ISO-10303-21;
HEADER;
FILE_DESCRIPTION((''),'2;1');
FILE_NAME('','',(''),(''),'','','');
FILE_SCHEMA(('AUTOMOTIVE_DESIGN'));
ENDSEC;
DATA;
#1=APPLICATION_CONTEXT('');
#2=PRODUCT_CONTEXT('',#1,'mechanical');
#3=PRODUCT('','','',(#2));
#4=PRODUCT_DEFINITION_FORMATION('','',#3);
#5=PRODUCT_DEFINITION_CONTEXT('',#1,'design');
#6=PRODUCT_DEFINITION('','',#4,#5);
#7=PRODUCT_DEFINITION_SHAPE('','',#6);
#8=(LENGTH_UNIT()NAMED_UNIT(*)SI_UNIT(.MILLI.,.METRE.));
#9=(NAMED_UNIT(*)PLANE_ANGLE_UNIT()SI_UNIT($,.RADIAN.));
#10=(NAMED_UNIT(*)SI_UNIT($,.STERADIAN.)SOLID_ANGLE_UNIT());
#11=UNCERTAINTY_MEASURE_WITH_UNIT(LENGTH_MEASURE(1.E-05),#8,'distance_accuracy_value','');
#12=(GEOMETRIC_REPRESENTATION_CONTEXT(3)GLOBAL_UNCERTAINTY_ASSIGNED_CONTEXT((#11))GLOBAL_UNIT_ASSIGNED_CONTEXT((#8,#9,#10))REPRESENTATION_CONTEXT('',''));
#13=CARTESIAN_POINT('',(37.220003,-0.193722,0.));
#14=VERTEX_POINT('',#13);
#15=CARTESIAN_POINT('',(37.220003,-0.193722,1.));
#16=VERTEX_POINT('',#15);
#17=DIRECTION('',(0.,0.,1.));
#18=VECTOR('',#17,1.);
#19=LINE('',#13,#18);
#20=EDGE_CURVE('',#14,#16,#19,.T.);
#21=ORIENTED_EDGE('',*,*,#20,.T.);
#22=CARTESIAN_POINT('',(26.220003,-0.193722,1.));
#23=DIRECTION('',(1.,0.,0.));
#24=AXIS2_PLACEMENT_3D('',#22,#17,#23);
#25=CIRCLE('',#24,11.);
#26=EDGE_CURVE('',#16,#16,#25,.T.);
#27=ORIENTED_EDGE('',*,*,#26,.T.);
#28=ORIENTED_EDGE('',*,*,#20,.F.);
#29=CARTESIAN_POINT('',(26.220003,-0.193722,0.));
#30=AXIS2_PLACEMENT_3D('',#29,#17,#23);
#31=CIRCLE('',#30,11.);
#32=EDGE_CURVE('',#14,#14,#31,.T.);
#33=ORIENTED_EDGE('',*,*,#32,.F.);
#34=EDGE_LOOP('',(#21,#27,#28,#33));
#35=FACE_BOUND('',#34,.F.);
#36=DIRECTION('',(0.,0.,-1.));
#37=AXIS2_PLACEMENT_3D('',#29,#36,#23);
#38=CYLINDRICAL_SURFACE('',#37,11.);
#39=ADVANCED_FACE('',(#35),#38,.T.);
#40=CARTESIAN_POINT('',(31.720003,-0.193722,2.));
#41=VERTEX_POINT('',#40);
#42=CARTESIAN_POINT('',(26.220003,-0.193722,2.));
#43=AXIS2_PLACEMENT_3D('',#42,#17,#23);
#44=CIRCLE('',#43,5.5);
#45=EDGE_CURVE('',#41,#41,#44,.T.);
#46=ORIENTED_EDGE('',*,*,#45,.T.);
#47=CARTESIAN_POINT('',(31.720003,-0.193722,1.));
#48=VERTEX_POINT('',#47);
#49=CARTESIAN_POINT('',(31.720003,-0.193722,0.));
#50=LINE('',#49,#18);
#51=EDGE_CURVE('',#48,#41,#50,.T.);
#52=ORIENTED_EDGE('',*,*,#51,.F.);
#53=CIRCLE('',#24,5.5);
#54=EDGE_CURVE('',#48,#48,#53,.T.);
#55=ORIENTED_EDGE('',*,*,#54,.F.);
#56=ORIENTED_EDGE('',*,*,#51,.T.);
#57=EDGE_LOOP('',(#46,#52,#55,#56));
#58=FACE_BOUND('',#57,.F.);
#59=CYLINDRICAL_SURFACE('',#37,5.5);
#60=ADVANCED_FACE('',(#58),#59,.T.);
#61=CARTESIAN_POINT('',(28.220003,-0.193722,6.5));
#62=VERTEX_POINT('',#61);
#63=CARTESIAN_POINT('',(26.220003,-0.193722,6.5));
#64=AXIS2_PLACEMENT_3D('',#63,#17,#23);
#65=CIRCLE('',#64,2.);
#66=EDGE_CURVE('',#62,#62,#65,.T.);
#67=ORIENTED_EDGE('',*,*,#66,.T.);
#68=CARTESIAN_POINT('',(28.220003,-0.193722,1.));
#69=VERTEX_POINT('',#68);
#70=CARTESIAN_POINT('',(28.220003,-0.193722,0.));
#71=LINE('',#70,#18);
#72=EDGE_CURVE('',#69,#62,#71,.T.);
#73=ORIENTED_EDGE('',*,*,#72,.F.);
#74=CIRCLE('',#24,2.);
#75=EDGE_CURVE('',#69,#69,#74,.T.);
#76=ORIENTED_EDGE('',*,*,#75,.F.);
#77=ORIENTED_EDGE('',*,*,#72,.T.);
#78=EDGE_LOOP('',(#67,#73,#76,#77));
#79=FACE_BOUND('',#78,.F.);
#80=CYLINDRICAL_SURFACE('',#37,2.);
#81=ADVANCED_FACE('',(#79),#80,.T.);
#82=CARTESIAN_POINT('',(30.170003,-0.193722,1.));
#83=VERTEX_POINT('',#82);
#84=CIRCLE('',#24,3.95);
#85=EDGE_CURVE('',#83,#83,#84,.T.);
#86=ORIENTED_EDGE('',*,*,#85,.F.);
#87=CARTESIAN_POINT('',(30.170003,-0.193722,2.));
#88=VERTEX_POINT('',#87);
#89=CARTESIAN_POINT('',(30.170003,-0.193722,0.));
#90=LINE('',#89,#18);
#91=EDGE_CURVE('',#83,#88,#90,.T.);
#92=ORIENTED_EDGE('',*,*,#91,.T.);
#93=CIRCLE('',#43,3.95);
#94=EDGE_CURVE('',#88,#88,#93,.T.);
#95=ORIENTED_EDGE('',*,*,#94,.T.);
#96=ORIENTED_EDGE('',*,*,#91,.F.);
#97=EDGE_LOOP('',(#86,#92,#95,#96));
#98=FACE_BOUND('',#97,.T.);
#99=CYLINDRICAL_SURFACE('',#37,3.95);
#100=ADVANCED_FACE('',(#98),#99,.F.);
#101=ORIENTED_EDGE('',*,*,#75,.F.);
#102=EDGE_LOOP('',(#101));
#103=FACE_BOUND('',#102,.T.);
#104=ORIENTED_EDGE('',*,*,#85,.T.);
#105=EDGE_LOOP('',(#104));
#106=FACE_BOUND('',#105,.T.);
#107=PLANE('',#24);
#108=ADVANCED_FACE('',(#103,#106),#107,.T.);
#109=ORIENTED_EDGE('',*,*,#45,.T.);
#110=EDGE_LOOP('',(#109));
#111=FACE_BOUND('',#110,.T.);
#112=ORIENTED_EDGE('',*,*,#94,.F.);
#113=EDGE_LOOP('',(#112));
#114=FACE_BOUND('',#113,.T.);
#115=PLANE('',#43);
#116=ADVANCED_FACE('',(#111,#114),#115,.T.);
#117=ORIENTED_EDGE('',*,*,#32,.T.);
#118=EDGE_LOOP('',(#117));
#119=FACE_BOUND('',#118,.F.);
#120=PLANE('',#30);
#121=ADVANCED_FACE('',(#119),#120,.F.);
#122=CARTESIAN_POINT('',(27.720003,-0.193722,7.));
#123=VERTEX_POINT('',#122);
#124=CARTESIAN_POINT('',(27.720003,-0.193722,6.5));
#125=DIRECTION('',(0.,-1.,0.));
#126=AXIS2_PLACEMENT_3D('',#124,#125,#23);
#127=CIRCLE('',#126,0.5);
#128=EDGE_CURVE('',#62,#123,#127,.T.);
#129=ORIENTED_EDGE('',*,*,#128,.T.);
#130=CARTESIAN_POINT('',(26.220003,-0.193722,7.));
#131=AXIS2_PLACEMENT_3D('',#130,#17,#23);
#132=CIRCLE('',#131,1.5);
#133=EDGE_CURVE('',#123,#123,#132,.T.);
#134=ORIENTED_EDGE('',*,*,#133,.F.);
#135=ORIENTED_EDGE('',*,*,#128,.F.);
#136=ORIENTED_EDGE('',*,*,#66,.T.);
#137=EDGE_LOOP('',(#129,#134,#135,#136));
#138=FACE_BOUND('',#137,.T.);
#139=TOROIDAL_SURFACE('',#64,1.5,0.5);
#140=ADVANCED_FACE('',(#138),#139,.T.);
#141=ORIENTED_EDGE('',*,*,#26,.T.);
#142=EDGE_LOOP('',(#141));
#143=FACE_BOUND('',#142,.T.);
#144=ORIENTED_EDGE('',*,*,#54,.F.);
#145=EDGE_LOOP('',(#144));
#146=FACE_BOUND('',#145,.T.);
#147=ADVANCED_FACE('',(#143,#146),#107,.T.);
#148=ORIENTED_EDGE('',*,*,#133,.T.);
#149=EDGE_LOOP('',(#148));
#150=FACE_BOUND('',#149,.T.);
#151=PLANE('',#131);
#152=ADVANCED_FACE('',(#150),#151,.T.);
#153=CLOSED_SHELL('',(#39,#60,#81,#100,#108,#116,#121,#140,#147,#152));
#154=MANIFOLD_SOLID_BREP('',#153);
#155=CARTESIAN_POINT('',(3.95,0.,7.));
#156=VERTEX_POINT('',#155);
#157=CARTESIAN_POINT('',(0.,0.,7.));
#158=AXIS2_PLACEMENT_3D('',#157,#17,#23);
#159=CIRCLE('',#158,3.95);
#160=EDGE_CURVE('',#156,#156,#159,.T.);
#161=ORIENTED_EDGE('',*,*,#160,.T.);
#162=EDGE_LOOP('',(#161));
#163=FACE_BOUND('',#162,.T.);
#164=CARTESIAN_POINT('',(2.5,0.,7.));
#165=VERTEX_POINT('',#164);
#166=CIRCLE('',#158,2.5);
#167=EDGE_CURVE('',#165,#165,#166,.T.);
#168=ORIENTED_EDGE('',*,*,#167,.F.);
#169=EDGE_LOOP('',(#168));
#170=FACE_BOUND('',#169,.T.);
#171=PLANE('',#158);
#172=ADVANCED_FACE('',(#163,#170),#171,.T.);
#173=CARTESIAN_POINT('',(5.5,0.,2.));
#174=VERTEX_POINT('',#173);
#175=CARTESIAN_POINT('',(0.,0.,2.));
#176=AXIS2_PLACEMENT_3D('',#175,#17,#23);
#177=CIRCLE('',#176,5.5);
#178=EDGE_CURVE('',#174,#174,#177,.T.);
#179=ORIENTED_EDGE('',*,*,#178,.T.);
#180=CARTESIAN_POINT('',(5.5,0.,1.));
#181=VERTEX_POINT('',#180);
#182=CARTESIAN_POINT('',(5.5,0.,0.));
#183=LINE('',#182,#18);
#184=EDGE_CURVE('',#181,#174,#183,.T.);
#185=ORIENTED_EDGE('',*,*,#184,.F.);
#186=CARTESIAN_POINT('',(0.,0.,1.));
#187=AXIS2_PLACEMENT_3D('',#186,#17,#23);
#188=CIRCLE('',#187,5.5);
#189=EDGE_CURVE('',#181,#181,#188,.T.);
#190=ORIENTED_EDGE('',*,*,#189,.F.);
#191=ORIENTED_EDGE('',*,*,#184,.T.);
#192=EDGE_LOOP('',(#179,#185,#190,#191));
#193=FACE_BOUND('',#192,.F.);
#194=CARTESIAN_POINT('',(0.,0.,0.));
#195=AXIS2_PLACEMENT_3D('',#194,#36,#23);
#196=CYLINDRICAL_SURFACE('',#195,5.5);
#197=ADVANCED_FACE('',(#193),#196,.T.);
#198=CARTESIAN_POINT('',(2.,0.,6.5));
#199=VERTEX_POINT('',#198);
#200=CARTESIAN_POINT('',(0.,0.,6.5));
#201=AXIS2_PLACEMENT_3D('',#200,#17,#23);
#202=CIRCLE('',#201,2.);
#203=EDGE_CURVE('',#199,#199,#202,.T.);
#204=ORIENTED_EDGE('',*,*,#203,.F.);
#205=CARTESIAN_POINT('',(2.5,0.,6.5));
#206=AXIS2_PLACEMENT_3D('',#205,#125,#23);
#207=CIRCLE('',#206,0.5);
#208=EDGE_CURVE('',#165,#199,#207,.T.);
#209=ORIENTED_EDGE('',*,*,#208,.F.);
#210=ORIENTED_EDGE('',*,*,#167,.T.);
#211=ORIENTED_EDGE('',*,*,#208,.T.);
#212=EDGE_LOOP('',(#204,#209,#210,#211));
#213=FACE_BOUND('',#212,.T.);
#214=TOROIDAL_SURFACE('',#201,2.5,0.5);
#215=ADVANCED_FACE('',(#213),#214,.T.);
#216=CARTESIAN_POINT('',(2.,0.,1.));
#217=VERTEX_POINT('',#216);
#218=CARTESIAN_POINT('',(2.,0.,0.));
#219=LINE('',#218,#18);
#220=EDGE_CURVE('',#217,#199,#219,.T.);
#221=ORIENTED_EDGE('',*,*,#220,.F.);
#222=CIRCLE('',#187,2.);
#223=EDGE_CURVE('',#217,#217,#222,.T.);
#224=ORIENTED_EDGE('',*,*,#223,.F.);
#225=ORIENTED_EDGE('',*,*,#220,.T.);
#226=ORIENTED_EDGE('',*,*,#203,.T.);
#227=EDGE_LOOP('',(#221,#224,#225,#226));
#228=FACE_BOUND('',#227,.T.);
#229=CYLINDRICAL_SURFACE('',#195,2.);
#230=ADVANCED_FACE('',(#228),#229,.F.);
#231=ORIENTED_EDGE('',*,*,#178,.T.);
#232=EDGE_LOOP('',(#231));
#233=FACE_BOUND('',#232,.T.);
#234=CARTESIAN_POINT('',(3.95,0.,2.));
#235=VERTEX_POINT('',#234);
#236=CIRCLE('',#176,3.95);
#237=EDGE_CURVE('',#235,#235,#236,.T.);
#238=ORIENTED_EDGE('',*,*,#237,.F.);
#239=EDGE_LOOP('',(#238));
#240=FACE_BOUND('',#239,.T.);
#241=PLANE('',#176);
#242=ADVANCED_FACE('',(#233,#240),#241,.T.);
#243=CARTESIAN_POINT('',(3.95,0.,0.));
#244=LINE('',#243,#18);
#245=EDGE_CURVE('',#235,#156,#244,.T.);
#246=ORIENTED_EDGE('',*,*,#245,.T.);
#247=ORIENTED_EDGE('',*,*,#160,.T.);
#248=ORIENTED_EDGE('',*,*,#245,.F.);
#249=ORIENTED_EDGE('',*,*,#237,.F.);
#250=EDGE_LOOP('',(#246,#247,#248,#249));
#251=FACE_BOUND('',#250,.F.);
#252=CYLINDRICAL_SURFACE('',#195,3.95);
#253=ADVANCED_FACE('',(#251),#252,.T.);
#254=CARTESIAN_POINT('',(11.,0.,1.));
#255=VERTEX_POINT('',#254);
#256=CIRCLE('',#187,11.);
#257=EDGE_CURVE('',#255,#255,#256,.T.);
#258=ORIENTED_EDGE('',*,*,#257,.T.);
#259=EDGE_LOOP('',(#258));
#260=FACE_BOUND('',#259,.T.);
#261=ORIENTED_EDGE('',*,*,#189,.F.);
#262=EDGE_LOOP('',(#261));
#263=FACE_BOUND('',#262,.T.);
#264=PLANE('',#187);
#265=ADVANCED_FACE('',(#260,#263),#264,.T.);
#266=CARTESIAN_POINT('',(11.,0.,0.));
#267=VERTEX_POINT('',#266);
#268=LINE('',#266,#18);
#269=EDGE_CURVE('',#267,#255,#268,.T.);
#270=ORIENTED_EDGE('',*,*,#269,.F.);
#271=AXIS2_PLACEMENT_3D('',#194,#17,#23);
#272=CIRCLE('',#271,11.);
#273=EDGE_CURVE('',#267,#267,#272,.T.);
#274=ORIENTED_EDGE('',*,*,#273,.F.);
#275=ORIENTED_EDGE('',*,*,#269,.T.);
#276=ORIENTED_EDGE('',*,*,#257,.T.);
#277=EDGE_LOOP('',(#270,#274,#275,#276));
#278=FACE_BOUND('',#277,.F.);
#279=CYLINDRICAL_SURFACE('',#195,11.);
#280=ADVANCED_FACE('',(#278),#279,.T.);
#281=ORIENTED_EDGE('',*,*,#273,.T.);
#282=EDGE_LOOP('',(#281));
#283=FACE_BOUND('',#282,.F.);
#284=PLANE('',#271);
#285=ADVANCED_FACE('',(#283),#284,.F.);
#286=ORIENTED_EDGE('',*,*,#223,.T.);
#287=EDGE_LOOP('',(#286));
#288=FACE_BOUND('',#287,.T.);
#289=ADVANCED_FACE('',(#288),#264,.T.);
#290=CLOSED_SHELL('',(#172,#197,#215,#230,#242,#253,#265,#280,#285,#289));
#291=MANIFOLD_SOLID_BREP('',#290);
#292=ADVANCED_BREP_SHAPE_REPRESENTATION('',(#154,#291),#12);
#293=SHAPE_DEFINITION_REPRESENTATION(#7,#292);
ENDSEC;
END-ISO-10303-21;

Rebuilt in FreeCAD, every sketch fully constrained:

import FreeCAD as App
import Part
import Sketcher

V = App.Vector
Q = App.Units.Quantity


def edges_at(feature, points):
    """Names of the edges that pass closest to the given points."""
    edges = feature.Shape.Edges
    near = lambda p: min(range(len(edges)), key=lambda i: edges[i].distToShape(Part.Vertex(*p))[0])
    return sorted({f"Edge{near(p) + 1}" for p in points})

doc = App.newDocument("Part")
body = doc.addObject("PartDesign::Body", "Body")

sketch1 = body.newObject("Sketcher::SketchObject", "Sketch")
sketch1.AttachmentSupport = (doc.getObject("XY_Plane"), [""])
sketch1.MapMode = "FlatFace"
sketch1.addGeometry(Part.Circle(V(0, 0, 0), V(0, 0, 1), 11), False)
sketch1.addGeometry(Part.Circle(V(0, 0, 0), V(0, 0, 1), 6), False)
sketch1.addConstraint(Sketcher.Constraint("Coincident", 0, 3, -1, 1))
sketch1.addConstraint(Sketcher.Constraint("Coincident", 1, 3, -1, 1))
sketch1.addConstraint(Sketcher.Constraint("Diameter", 0, Q("22 mm")))
sketch1.addConstraint(Sketcher.Constraint("Diameter", 1, Q("11 mm")))
pad1 = body.newObject("PartDesign::Pad", "Pad")
pad1.Profile = sketch1
pad1.Length = 1

sketch2 = body.newObject("Sketcher::SketchObject", "Sketch001")
sketch2.AttachmentSupport = (doc.getObject("XY_Plane"), [""])
sketch2.MapMode = "FlatFace"
sketch2.addGeometry(Part.Circle(V(0, 0, 0), V(0, 0, 1), 5.5), False)
sketch2.addGeometry(Part.Circle(V(0, 0, 0), V(0, 0, 1), 4), False)
sketch2.addConstraint(Sketcher.Constraint("Coincident", 0, 3, -1, 1))
sketch2.addConstraint(Sketcher.Constraint("Coincident", 1, 3, -1, 1))
sketch2.addConstraint(Sketcher.Constraint("Diameter", 0, Q("11 mm")))
sketch2.addConstraint(Sketcher.Constraint("Diameter", 1, Q("7.9 mm")))
pad2 = body.newObject("PartDesign::Pad", "Pad001")
pad2.Profile = sketch2
pad2.Length = 2

sketch3 = body.newObject("Sketcher::SketchObject", "Sketch002")
sketch3.AttachmentSupport = (doc.getObject("XY_Plane"), [""])
sketch3.MapMode = "FlatFace"
sketch3.addGeometry(Part.Circle(V(0, 0, 0), V(0, 0, 1), 4), False)
sketch3.addGeometry(Part.Circle(V(0, 0, 0), V(0, 0, 1), 2), False)
sketch3.addConstraint(Sketcher.Constraint("Coincident", 0, 3, -1, 1))
sketch3.addConstraint(Sketcher.Constraint("Coincident", 1, 3, -1, 1))
sketch3.addConstraint(Sketcher.Constraint("Diameter", 1, Q("4 mm")))
sketch3.addConstraint(Sketcher.Constraint("Diameter", 0, Q("7.9 mm")))
pad3 = body.newObject("PartDesign::Pad", "Pad002")
pad3.Profile = sketch3
pad3.Length = 7

sketch4 = body.newObject("Sketcher::SketchObject", "Sketch003")
sketch4.AttachmentSupport = (doc.getObject("XY_Plane"), [""])
sketch4.MapMode = "FlatFace"
sketch4.addGeometry(Part.Circle(V(0, 0, 0), V(0, 0, 1), 2), False)
sketch4.addConstraint(Sketcher.Constraint("Coincident", 0, 3, -1, 1))
sketch4.addConstraint(Sketcher.Constraint("Diameter", 0, Q("4 mm")))
pad4 = body.newObject("PartDesign::Pad", "Pad003")
pad4.Profile = sketch4
pad4.Length = 1
doc.recompute()

fillet = body.newObject("PartDesign::Fillet", "Fillet")
fillet.Base = (pad4, edges_at(pad4, [(-2, 0, 7)]))
fillet.Radius = 0.5
body2 = doc.addObject("PartDesign::Body", "Body001")

sketch5 = body2.newObject("Sketcher::SketchObject", "Sketch004")
sketch5.AttachmentSupport = (doc.getObject("XY_Plane001"), [""])
sketch5.MapMode = "FlatFace"
sketch5.addGeometry(Part.Circle(V(26, 0, 0), V(0, 0, 1), 11), False)
sketch5.addGeometry(Part.Circle(V(26, 0, 0), V(0, 0, 1), 6), False)
sketch5.addConstraint(Sketcher.Constraint("Coincident", 1, 3, 0, 3))
sketch5.addConstraint(Sketcher.Constraint("Diameter", 0, Q("22 mm")))
sketch5.addConstraint(Sketcher.Constraint("Diameter", 1, Q("11 mm")))
sketch5.addConstraint(Sketcher.Constraint("DistanceX", -1, 1, 0, 3, Q("26.220003 mm")))
sketch5.addConstraint(Sketcher.Constraint("DistanceY", 0, 3, -1, 1, Q("0.193722 mm")))
pad5 = body2.newObject("PartDesign::Pad", "Pad004")
pad5.Profile = sketch5
pad5.Length = 1

sketch6 = body2.newObject("Sketcher::SketchObject", "Sketch005")
sketch6.AttachmentSupport = (doc.getObject("XY_Plane001"), [""])
sketch6.MapMode = "FlatFace"
sketch6.addGeometry(Part.Circle(V(26.2, -0.2, 0), V(0, 0, 1), 5.5), False)
sketch6.addGeometry(Part.Circle(V(26.2, -0.2, 0), V(0, 0, 1), 4), False)
sketch6.addConstraint(Sketcher.Constraint("Coincident", 1, 3, 0, 3))
sketch6.addConstraint(Sketcher.Constraint("Diameter", 0, Q("11 mm")))
sketch6.addConstraint(Sketcher.Constraint("Diameter", 1, Q("7.9 mm")))
sketch6.addConstraint(Sketcher.Constraint("DistanceX", -1, 1, 0, 3, Q("26.220003 mm")))
sketch6.addConstraint(Sketcher.Constraint("DistanceY", 0, 3, -1, 1, Q("0.193722 mm")))
pad6 = body2.newObject("PartDesign::Pad", "Pad005")
pad6.Profile = sketch6
pad6.Length = 2
body3 = doc.addObject("PartDesign::Body", "Body002")

sketch7 = body3.newObject("Sketcher::SketchObject", "Sketch006")
sketch7.AttachmentSupport = (doc.getObject("XY_Plane002"), [""])
sketch7.MapMode = "FlatFace"
sketch7.addGeometry(Part.Circle(V(26.2, -0.2, 0), V(0, 0, 1), 2), False)
sketch7.addConstraint(Sketcher.Constraint("Diameter", 0, Q("4 mm")))
sketch7.addConstraint(Sketcher.Constraint("DistanceX", -1, 1, 0, 3, Q("26.220003 mm")))
sketch7.addConstraint(Sketcher.Constraint("DistanceY", 0, 3, -1, 1, Q("0.193722 mm")))
pad7 = body3.newObject("PartDesign::Pad", "Pad006")
pad7.Profile = sketch7
pad7.Length = 7
body2.AllowCompound = True
doc.recompute()

boolean = body2.newObject("PartDesign::Boolean", "Boolean")
boolean.Type = "Fuse"
boolean.addObjects([body3])

sketch8 = body2.newObject("Sketcher::SketchObject", "Sketch007")
sketch8.AttachmentSupport = (doc.getObject("XY_Plane001"), [""])
sketch8.MapMode = "FlatFace"
sketch8.addGeometry(Part.Circle(V(26.2, -0.2, 0), V(0, 0, 1), 4), False)
sketch8.addGeometry(Part.Circle(V(26.2, -0.2, 0), V(0, 0, 1), 2), False)
sketch8.addConstraint(Sketcher.Constraint("Coincident", 1, 3, 0, 3))
sketch8.addConstraint(Sketcher.Constraint("Diameter", 1, Q("4 mm")))
sketch8.addConstraint(Sketcher.Constraint("Diameter", 0, Q("7.9 mm")))
sketch8.addConstraint(Sketcher.Constraint("DistanceX", -1, 1, 0, 3, Q("26.220003 mm")))
sketch8.addConstraint(Sketcher.Constraint("DistanceY", 0, 3, -1, 1, Q("0.193722 mm")))
pad8 = body2.newObject("PartDesign::Pad", "Pad007")
pad8.Profile = sketch8
pad8.Length = 1
doc.recompute()

fillet2 = body2.newObject("PartDesign::Fillet", "Fillet001")
fillet2.Base = (pad8, edges_at(pad8, [(24.22, -0.194, 7)]))
fillet2.Radius = 0.5

doc.recompute()
